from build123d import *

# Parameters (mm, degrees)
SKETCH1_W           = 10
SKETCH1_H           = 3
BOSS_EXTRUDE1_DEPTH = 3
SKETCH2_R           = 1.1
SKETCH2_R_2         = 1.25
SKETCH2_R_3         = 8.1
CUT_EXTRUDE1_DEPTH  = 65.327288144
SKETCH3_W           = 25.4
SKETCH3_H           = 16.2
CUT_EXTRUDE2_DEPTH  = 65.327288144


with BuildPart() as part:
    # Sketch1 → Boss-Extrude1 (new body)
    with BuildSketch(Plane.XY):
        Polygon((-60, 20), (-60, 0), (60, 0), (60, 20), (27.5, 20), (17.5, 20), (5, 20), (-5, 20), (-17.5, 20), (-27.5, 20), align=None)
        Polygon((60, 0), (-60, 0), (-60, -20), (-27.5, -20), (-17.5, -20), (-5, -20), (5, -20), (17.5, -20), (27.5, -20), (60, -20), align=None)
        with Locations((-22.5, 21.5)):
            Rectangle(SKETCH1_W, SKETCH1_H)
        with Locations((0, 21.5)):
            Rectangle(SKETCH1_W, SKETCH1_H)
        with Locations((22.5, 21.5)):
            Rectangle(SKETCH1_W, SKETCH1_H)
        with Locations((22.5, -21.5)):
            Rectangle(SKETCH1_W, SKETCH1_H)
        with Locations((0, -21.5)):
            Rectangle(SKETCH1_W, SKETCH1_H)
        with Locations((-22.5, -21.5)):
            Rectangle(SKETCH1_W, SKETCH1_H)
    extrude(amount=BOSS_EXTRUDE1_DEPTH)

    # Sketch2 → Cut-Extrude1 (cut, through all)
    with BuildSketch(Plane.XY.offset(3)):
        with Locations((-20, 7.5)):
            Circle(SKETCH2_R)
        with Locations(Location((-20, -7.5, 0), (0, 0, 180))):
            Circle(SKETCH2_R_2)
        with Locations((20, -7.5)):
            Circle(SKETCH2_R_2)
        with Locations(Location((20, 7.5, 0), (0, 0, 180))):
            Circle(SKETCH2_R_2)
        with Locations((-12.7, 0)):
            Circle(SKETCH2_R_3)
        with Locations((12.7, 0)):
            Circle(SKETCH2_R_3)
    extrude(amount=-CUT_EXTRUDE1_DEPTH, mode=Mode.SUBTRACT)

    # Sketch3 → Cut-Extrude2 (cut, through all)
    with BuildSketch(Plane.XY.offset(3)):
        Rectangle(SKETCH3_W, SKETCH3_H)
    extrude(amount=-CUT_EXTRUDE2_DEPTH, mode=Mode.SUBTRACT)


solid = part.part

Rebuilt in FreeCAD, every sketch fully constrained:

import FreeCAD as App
import Part
import Sketcher

V = App.Vector
Q = App.Units.Quantity


def add_polygon(sketch, points):
    """Adds a closed chain of lines whose ends are joined by coincident constraints."""
    first, n = sketch.GeometryCount, len(points)
    for a, b in zip(points, points[1:] + points[:1]):
        sketch.addGeometry(Part.LineSegment(App.Vector(*a, 0), App.Vector(*b, 0)), False)
    for i in range(n):
        sketch.addConstraint(Sketcher.Constraint("Coincident", first + i, 2, first + (i + 1) % n, 1))

doc = App.newDocument("Part")
body = doc.addObject("PartDesign::Body", "Body")

# Sketch on XY plane
sketch1 = doc.addObject("Sketcher::SketchObject", "Sketch")
body.addObject(sketch1)
sketch1.AttachmentSupport = (doc.XY_Plane, [""])
sketch1.MapMode = "FlatFace"
add_polygon(sketch1, [(-60, 20), (-60, -20), (-27.5, -20), (-27.5, -23), (-17.5, -23), (-17.5, -20), (-5, -20), (-5, -23), (5, -23), (5, -20), (17.5, -20), (17.5, -23), (27.5, -23), (27.5, -20), (60, -20), (60, 20), (27.5, 20), (27.5, 23), (17.5, 23), (17.5, 20), (5, 20), (5, 23), (-5, 23), (-5, 20), (-17.5, 20), (-17.5, 23), (-27.5, 23), (-27.5, 20)])  # lines 0-27
sketch1.addConstraint([
    Sketcher.Constraint("Vertical", 0),
    Sketcher.Constraint("Horizontal", 1),
    Sketcher.Constraint("Vertical", 2),
    Sketcher.Constraint("Horizontal", 3),
    Sketcher.Constraint("Vertical", 4),
    Sketcher.Constraint("Horizontal", 5),
    Sketcher.Constraint("Vertical", 6),
    Sketcher.Constraint("Horizontal", 7),
    Sketcher.Constraint("Vertical", 8),
    Sketcher.Constraint("Horizontal", 9),
    Sketcher.Constraint("Vertical", 10),
    Sketcher.Constraint("Horizontal", 11),
    Sketcher.Constraint("Vertical", 12),
    Sketcher.Constraint("Horizontal", 13),
    Sketcher.Constraint("Vertical", 14),
    Sketcher.Constraint("Horizontal", 15),
    Sketcher.Constraint("Vertical", 16),
    Sketcher.Constraint("Horizontal", 17),
    Sketcher.Constraint("Vertical", 18),
    Sketcher.Constraint("Horizontal", 19),
    Sketcher.Constraint("Vertical", 20),
    Sketcher.Constraint("Horizontal", 21),
    Sketcher.Constraint("Vertical", 22),
    Sketcher.Constraint("Horizontal", 23),
    Sketcher.Constraint("Vertical", 24),
    Sketcher.Constraint("Horizontal", 25),
    Sketcher.Constraint("Vertical", 26),
    Sketcher.Constraint("Horizontal", 27),
    Sketcher.Constraint("Symmetric", 0, 2, 14, 2, -1, 1),
    Sketcher.Constraint("Symmetric", 2, 2, 16, 2, -1, 1),
    Sketcher.Constraint("Symmetric", 4, 2, 18, 2, -1, 1),
    Sketcher.Constraint("Symmetric", 6, 2, 20, 2, -1, 1),
    Sketcher.Constraint("Symmetric", 8, 2, 22, 2, -1, 1),
    Sketcher.Constraint("Symmetric", 10, 2, 24, 2, -1, 1),
    Sketcher.Constraint("Symmetric", 12, 2, 26, 2, -1, 1),
    Sketcher.Constraint("Symmetric", 5, 2, 8, 2, -2),
    Sketcher.Constraint("Symmetric", 3, 2, 10, 2, -2),
    Sketcher.Constraint("Symmetric", 1, 2, 12, 2, -2),
    Sketcher.Constraint("Horizontal", 1, 2, 4, 2),
    Sketcher.Constraint("Horizontal", 3, 2, 6, 2),
    Sketcher.Constraint("Equal", 3, 7),
    Sketcher.Constraint("DistanceX", 3, 1, 3, 2, Q("10 mm")),
    Sketcher.Constraint("DistanceY", 0, 2, 0, 1, Q("40 mm")),
    Sketcher.Constraint("DistanceY", 2, 2, 2, 1, Q("3 mm")),
    Sketcher.Constraint("DistanceX", 1, 1, 1, 2, Q("32.5 mm")),
    Sketcher.Constraint("DistanceX", 5, 1, 5, 2, Q("12.5 mm")),
])
pad1 = doc.addObject("PartDesign::Pad", "Pad")
body.addObject(pad1)
pad1.Profile = sketch1
pad1.Length = 3

# Sketch on XY plane
sketch2 = doc.addObject("Sketcher::SketchObject", "Sketch001")
body.addObject(sketch2)
sketch2.AttachmentSupport = (doc.XY_Plane, [""])
sketch2.MapMode = "FlatFace"
sketch2.AttachmentOffset = App.Placement(V(0, 0, 3), App.Rotation())
sketch2.addGeometry([
    Part.Circle(V(-20, 7.5, 0), V(0, 0, 1), 1.1),  # 0
    Part.Circle(V(-20, -7.5, 0), V(0, 0, 1), 1.2),  # 1
    Part.Circle(V(20, -7.5, 0), V(0, 0, 1), 1.2),  # 2
    Part.Circle(V(20, 7.5, 0), V(0, 0, 1), 1.2),  # 3
    Part.Circle(V(-12.7, 0, 0), V(0, 0, 1), 8.1),  # 4
    Part.Circle(V(12.7, 0, 0), V(0, 0, 1), 8.1),  # 5
], False)
sketch2.addConstraint([
    Sketcher.Constraint("Equal", 1, 2),
    Sketcher.Constraint("Equal", 2, 3),
    Sketcher.Constraint("Equal", 4, 5),
    Sketcher.Constraint("Symmetric", 0, 3, 2, 3, -1, 1),
    Sketcher.Constraint("Symmetric", 1, 3, 3, 3, -1, 1),
    Sketcher.Constraint("Symmetric", 4, 3, 5, 3, -1, 1),
    Sketcher.Constraint("Symmetric", 1, 3, 2, 3, -2),
    Sketcher.Constraint("PointOnObject", 4, 3, -1),
    Sketcher.Constraint("Diameter", 0, Q("2.2 mm")),
    Sketcher.Constraint("Diameter", 1, Q("2.5 mm")),
    Sketcher.Constraint("Diameter", 4, Q("16.2 mm")),
    Sketcher.Constraint("DistanceX", 0, 3, -1, 1, Q("20 mm")),
    Sketcher.Constraint("DistanceY", 1, 3, 0, 3, Q("15 mm")),
    Sketcher.Constraint("DistanceX", 4, 3, -1, 1, Q("12.7 mm")),
])
pocket1 = doc.addObject("PartDesign::Pocket", "Pocket")
body.addObject(pocket1)
pocket1.Profile = sketch2
pocket1.Type = "ThroughAll"

# Sketch on XY plane
sketch3 = doc.addObject("Sketcher::SketchObject", "Sketch002")
body.addObject(sketch3)
sketch3.AttachmentSupport = (doc.XY_Plane, [""])
sketch3.MapMode = "FlatFace"
sketch3.AttachmentOffset = App.Placement(V(0, 0, 3), App.Rotation())
add_polygon(sketch3, [(-13, 8), (-13, -8), (13, -8), (13, 8)])  # lines 0-3
sketch3.addConstraint([
    Sketcher.Constraint("Vertical", 0),
    Sketcher.Constraint("Horizontal", 1),
    Sketcher.Constraint("Vertical", 2),
    Sketcher.Constraint("Horizontal", 3),
    Sketcher.Constraint("Symmetric", 0, 2, 2, 2, -1, 1),
    Sketcher.Constraint("DistanceX", 1, 1, 1, 2, Q("25.4 mm")),
    Sketcher.Constraint("DistanceY", 0, 2, 0, 1, Q("16.2 mm")),
])
pocket2 = doc.addObject("PartDesign::Pocket", "Pocket001")
body.addObject(pocket2)
pocket2.Profile = sketch3
pocket2.Type = "ThroughAll"

doc.recompute()
